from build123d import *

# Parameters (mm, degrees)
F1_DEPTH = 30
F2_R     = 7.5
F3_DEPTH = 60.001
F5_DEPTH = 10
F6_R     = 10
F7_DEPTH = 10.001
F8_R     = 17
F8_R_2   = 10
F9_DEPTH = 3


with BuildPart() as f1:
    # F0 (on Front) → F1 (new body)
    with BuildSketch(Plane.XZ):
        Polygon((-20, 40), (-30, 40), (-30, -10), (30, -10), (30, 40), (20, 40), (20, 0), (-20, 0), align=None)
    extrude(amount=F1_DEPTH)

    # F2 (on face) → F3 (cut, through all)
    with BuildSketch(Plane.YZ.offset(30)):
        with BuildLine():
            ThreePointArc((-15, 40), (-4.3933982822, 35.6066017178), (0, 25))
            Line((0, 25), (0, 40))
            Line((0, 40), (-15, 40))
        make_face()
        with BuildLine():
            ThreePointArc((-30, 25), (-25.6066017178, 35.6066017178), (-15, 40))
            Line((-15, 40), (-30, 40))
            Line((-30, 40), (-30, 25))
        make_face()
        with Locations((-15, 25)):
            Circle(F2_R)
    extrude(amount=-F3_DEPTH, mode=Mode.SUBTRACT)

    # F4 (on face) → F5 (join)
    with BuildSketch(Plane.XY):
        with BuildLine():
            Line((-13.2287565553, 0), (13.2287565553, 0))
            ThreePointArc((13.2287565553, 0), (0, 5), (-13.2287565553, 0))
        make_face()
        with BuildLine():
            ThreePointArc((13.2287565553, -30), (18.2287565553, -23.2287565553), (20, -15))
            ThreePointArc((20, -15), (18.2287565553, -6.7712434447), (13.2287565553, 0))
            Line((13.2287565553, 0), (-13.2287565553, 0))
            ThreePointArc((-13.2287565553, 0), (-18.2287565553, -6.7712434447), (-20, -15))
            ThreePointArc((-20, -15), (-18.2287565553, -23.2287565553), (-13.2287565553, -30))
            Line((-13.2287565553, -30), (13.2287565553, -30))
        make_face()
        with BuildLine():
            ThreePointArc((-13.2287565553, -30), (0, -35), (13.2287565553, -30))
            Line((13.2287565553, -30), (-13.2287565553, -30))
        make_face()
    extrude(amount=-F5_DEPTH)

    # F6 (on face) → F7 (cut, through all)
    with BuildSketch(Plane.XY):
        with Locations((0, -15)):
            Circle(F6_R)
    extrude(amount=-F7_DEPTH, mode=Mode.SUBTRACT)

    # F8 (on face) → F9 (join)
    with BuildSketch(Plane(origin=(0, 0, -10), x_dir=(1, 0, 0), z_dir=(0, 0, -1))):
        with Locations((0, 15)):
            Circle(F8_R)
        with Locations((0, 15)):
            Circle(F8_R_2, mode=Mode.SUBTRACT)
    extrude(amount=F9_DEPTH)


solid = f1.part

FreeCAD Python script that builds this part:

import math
import FreeCAD as App
import Part
import Sketcher
from FreeCAD import Vector
Q = App.Units.Quantity

doc = App.newDocument("Part")
params = doc.addObject("Spreadsheet::Sheet", "Params")
for row, (alias, value) in enumerate([
    ("sketch1_width", "10 mm"),
    ("sketch1_width2", "60 mm"),
    ("sketch1_height", "50 mm"),
    ("pad1_length", "30 mm"),
    ("sketch2_diameter", "15 mm"),
    ("sketch2_radius", "15 mm"),
    ("sketch3_radius", "20 mm"),
    ("pad2_length", "10 mm"),
    ("sketch4_diameter", "20 mm"),
    ("sketch5_diameter", "34 mm"),
    ("sketch5_diameter2", "20 mm"),
    ("pad3_length", "3 mm"),
], start=1):
    params.set(f"A{row}", alias)
    params.set(f"B{row}", "=" + value)
    params.setAlias(f"B{row}", alias)

body = doc.addObject("PartDesign::Body", "Body")

# Sketch on XZ plane
sketch1 = body.newObject("Sketcher::SketchObject", "Sketch")
sketch1.AttachmentSupport = (doc.getObject("XZ_Plane"), [""])
sketch1.MapMode = "FlatFace"
sketch1.addGeometry([
    Part.LineSegment(Vector(-20, 40, 0), Vector(-30, 40, 0)),  # 0
    Part.LineSegment(Vector(-30, 40, 0), Vector(-30, -10, 0)),  # 1
    Part.LineSegment(Vector(-30, -10, 0), Vector(30, -10, 0)),  # 2
    Part.LineSegment(Vector(30, -10, 0), Vector(30, 40, 0)),  # 3
    Part.LineSegment(Vector(30, 40, 0), Vector(20, 40, 0)),  # 4
    Part.LineSegment(Vector(20, 40, 0), Vector(20, 0, 0)),  # 5
    Part.LineSegment(Vector(20, 0, 0), Vector(-20, 0, 0)),  # 6
    Part.LineSegment(Vector(-20, 0, 0), Vector(-20, 40, 0)),  # 7
], False)
sketch1.addConstraint([
    Sketcher.Constraint("Coincident", 0, 2, 1, 1),
    Sketcher.Constraint("Coincident", 1, 2, 2, 1),
    Sketcher.Constraint("Coincident", 2, 2, 3, 1),
    Sketcher.Constraint("Coincident", 3, 2, 4, 1),
    Sketcher.Constraint("Coincident", 4, 2, 5, 1),
    Sketcher.Constraint("Coincident", 5, 2, 6, 1),
    Sketcher.Constraint("Coincident", 6, 2, 7, 1),
    Sketcher.Constraint("Coincident", 7, 2, 0, 1),
    Sketcher.Constraint("Horizontal", 0),
    Sketcher.Constraint("Vertical", 1),
    Sketcher.Constraint("Horizontal", 2),
    Sketcher.Constraint("Vertical", 3),
    Sketcher.Constraint("Horizontal", 4),
    Sketcher.Constraint("Vertical", 5),
    Sketcher.Constraint("Horizontal", 6),
    Sketcher.Constraint("Vertical", 7),
    Sketcher.Constraint("Symmetric", 5, 2, 6, 2, -1, 1),
    Sketcher.Constraint("Symmetric", 0, 2, 3, 2, -2),
    Sketcher.Constraint("Equal", 6, 5),
    Sketcher.Constraint("DistanceX", 0, 2, 0, 1, Q("10 mm")),
    Sketcher.Constraint("DistanceX", 2, 1, 2, 2, Q("60 mm")),
    Sketcher.Constraint("DistanceY", 1, 2, 1, 1, Q("50 mm")),
])
sketch1.setExpression("Constraints[19]", "Params.sketch1_width")
sketch1.setExpression("Constraints[20]", "Params.sketch1_width2")
sketch1.setExpression("Constraints[21]", "Params.sketch1_height")
pad1 = body.newObject("PartDesign::Pad", "Pad")
pad1.Profile = sketch1
pad1.setExpression("Length", "Params.pad1_length")

# Sketch on YZ plane
sketch2 = body.newObject("Sketcher::SketchObject", "Sketch001")
sketch2.AttachmentSupport = (doc.getObject("YZ_Plane"), [""])
sketch2.MapMode = "FlatFace"
sketch2.AttachmentOffset = App.Placement(Vector(0, 0, 30), App.Rotation())
sketch2.addGeometry([
    Part.ArcOfCircle(Part.Circle(Vector(-15, 25, 0), Vector(0, 0, 1), 15), math.radians(0), math.radians(90)),  # 0
    Part.LineSegment(Vector(0, 25, 0), Vector(0, 40, 0)),  # 1
    Part.LineSegment(Vector(0, 40, 0), Vector(-15, 40, 0)),  # 2
    Part.ArcOfCircle(Part.Circle(Vector(-15, 25, 0), Vector(0, 0, 1), 15), math.radians(90), math.radians(180)),  # 3
    Part.LineSegment(Vector(-15, 40, 0), Vector(-30, 40, 0)),  # 4
    Part.LineSegment(Vector(-30, 40, 0), Vector(-30, 25, 0)),  # 5
    Part.Circle(Vector(-15, 25, 0), Vector(0, 0, 1), 8),  # 6
], False)
sketch2.addConstraint([
    Sketcher.Constraint("Tangent", 0, 1, 1, 1),
    Sketcher.Constraint("Coincident", 1, 2, 2, 1),
    Sketcher.Constraint("Tangent", 2, 2, 0, 2),
    Sketcher.Constraint("Tangent", 3, 1, 4, 1),
    Sketcher.Constraint("Coincident", 4, 2, 5, 1),
    Sketcher.Constraint("Tangent", 5, 2, 3, 2),
    Sketcher.Constraint("Vertical", 1),
    Sketcher.Constraint("Horizontal", 2),
    Sketcher.Constraint("Horizontal", 4),
    Sketcher.Constraint("Vertical", 5),
    Sketcher.Constraint("Coincident", 3, 3, 0, 3),
    Sketcher.Constraint("Coincident", 6, 3, 0, 3),
    Sketcher.Constraint("Equal", 0, 3),
    Sketcher.Constraint("PointOnObject", 0, 1, -2),
    Sketcher.Constraint("Diameter", 6, Q("15 mm")),
    Sketcher.Constraint("Radius", 0, Q("15 mm")),
    Sketcher.Constraint("DistanceY", -1, 1, 0, 3, Q("25 mm")),
])
sketch2.setExpression("Constraints[14]", "Params.sketch2_diameter")
sketch2.setExpression("Constraints[15]", "Params.sketch2_radius")
pocket1 = body.newObject("PartDesign::Pocket", "Pocket")
pocket1.Profile = sketch2
pocket1.Type = "ThroughAll"

# Sketch on XY plane
sketch3 = body.newObject("Sketcher::SketchObject", "Sketch002")
sketch3.AttachmentSupport = (doc.getObject("XY_Plane"), [""])
sketch3.MapMode = "FlatFace"
sketch3.addGeometry([
    Part.ArcOfCircle(Part.Circle(Vector(0, -15, 0), Vector(0, 0, 1), 20), math.radians(49), math.radians(131)),  # 0
    Part.ArcOfCircle(Part.Circle(Vector(0, -15, 0), Vector(0, 0, 1), 20), math.radians(131), math.radians(180)),  # 1
    Part.ArcOfCircle(Part.Circle(Vector(0, -15, 0), Vector(0, 0, 1), 20), math.radians(180), math.radians(229)),  # 2
    Part.ArcOfCircle(Part.Circle(Vector(0, -15, 0), Vector(0, 0, 1), 20), math.radians(-131), math.radians(-49)),  # 3
    Part.ArcOfCircle(Part.Circle(Vector(0, -15, 0), Vector(0, 0, 1), 20), math.radians(-49), math.radians(0)),  # 4
    Part.ArcOfCircle(Part.Circle(Vector(0, -15, 0), Vector(0, 0, 1), 20), math.radians(0), math.radians(49)),  # 5
], False)
sketch3.addConstraint([
    Sketcher.Constraint("Tangent", 0, 2, 1, 1),
    Sketcher.Constraint("Tangent", 1, 2, 2, 1),
    Sketcher.Constraint("Tangent", 2, 2, 3, 1),
    Sketcher.Constraint("Tangent", 3, 2, 4, 1),
    Sketcher.Constraint("Tangent", 4, 2, 5, 1),
    Sketcher.Constraint("Tangent", 5, 2, 0, 1),
    Sketcher.Constraint("Coincident", 2, 3, 0, 3),
    Sketcher.Constraint("Equal", 2, 3),
    Sketcher.Constraint("Symmetric", 0, 2, 5, 2, -1, 1),
    Sketcher.Constraint("Symmetric", 2, 2, 3, 2, -2),
    Sketcher.Constraint("Horizontal", 5, 3, 1, 2),
    Sketcher.Constraint("Horizontal", 1, 2, 4, 2),
    Sketcher.Constraint("Vertical", 0, 2, 2, 2),
    Sketcher.Constraint("Radius", 0, Q("20 mm")),
    Sketcher.Constraint("DistanceY", 0, 3, -1, 1, Q("15 mm")),
])
sketch3.setExpression("Constraints[13]", "Params.sketch3_radius")
pad2 = body.newObject("PartDesign::Pad", "Pad001")
pad2.Profile = sketch3
pad2.setExpression("Length", "Params.pad2_length")
pad2.Reversed = True

# Sketch on XY plane
sketch4 = body.newObject("Sketcher::SketchObject", "Sketch003")
sketch4.AttachmentSupport = (doc.getObject("XY_Plane"), [""])
sketch4.MapMode = "FlatFace"
sketch4.addGeometry(Part.Circle(Vector(0, -15, 0), Vector(0, 0, 1), 10), False)
sketch4.addConstraint([
    Sketcher.Constraint("PointOnObject", 0, 3, -2),
    Sketcher.Constraint("Diameter", 0, Q("20 mm")),
    Sketcher.Constraint("DistanceY", 0, 3, -1, 1, Q("15 mm")),
])
sketch4.setExpression("Constraints[1]", "Params.sketch4_diameter")
pocket2 = body.newObject("PartDesign::Pocket", "Pocket001")
pocket2.Profile = sketch4
pocket2.Type = "ThroughAll"

# Sketch on XY plane
sketch5 = body.newObject("Sketcher::SketchObject", "Sketch004")
sketch5.AttachmentSupport = (doc.getObject("XY_Plane"), [""])
sketch5.MapMode = "FlatFace"
sketch5.AttachmentOffset = App.Placement(Vector(0, 0, -10), App.Rotation())
sketch5.addGeometry([
    Part.Circle(Vector(0, -15, 0), Vector(0, 0, 1), 17),
    Part.Circle(Vector(0, -15, 0), Vector(0, 0, 1), 10),
], False)
sketch5.addConstraint([
    Sketcher.Constraint("Coincident", 1, 3, 0, 3),
    Sketcher.Constraint("PointOnObject", 0, 3, -2),
    Sketcher.Constraint("Diameter", 0, Q("34 mm")),
    Sketcher.Constraint("Diameter", 1, Q("20 mm")),
    Sketcher.Constraint("DistanceY", 0, 3, -1, 1, Q("15 mm")),
])
sketch5.setExpression("Constraints[2]", "Params.sketch5_diameter")
sketch5.setExpression("Constraints[3]", "Params.sketch5_diameter2")
pad3 = body.newObject("PartDesign::Pad", "Pad002")
pad3.Profile = sketch5
pad3.setExpression("Length", "Params.pad3_length")
pad3.Reversed = True

doc.recompute()
